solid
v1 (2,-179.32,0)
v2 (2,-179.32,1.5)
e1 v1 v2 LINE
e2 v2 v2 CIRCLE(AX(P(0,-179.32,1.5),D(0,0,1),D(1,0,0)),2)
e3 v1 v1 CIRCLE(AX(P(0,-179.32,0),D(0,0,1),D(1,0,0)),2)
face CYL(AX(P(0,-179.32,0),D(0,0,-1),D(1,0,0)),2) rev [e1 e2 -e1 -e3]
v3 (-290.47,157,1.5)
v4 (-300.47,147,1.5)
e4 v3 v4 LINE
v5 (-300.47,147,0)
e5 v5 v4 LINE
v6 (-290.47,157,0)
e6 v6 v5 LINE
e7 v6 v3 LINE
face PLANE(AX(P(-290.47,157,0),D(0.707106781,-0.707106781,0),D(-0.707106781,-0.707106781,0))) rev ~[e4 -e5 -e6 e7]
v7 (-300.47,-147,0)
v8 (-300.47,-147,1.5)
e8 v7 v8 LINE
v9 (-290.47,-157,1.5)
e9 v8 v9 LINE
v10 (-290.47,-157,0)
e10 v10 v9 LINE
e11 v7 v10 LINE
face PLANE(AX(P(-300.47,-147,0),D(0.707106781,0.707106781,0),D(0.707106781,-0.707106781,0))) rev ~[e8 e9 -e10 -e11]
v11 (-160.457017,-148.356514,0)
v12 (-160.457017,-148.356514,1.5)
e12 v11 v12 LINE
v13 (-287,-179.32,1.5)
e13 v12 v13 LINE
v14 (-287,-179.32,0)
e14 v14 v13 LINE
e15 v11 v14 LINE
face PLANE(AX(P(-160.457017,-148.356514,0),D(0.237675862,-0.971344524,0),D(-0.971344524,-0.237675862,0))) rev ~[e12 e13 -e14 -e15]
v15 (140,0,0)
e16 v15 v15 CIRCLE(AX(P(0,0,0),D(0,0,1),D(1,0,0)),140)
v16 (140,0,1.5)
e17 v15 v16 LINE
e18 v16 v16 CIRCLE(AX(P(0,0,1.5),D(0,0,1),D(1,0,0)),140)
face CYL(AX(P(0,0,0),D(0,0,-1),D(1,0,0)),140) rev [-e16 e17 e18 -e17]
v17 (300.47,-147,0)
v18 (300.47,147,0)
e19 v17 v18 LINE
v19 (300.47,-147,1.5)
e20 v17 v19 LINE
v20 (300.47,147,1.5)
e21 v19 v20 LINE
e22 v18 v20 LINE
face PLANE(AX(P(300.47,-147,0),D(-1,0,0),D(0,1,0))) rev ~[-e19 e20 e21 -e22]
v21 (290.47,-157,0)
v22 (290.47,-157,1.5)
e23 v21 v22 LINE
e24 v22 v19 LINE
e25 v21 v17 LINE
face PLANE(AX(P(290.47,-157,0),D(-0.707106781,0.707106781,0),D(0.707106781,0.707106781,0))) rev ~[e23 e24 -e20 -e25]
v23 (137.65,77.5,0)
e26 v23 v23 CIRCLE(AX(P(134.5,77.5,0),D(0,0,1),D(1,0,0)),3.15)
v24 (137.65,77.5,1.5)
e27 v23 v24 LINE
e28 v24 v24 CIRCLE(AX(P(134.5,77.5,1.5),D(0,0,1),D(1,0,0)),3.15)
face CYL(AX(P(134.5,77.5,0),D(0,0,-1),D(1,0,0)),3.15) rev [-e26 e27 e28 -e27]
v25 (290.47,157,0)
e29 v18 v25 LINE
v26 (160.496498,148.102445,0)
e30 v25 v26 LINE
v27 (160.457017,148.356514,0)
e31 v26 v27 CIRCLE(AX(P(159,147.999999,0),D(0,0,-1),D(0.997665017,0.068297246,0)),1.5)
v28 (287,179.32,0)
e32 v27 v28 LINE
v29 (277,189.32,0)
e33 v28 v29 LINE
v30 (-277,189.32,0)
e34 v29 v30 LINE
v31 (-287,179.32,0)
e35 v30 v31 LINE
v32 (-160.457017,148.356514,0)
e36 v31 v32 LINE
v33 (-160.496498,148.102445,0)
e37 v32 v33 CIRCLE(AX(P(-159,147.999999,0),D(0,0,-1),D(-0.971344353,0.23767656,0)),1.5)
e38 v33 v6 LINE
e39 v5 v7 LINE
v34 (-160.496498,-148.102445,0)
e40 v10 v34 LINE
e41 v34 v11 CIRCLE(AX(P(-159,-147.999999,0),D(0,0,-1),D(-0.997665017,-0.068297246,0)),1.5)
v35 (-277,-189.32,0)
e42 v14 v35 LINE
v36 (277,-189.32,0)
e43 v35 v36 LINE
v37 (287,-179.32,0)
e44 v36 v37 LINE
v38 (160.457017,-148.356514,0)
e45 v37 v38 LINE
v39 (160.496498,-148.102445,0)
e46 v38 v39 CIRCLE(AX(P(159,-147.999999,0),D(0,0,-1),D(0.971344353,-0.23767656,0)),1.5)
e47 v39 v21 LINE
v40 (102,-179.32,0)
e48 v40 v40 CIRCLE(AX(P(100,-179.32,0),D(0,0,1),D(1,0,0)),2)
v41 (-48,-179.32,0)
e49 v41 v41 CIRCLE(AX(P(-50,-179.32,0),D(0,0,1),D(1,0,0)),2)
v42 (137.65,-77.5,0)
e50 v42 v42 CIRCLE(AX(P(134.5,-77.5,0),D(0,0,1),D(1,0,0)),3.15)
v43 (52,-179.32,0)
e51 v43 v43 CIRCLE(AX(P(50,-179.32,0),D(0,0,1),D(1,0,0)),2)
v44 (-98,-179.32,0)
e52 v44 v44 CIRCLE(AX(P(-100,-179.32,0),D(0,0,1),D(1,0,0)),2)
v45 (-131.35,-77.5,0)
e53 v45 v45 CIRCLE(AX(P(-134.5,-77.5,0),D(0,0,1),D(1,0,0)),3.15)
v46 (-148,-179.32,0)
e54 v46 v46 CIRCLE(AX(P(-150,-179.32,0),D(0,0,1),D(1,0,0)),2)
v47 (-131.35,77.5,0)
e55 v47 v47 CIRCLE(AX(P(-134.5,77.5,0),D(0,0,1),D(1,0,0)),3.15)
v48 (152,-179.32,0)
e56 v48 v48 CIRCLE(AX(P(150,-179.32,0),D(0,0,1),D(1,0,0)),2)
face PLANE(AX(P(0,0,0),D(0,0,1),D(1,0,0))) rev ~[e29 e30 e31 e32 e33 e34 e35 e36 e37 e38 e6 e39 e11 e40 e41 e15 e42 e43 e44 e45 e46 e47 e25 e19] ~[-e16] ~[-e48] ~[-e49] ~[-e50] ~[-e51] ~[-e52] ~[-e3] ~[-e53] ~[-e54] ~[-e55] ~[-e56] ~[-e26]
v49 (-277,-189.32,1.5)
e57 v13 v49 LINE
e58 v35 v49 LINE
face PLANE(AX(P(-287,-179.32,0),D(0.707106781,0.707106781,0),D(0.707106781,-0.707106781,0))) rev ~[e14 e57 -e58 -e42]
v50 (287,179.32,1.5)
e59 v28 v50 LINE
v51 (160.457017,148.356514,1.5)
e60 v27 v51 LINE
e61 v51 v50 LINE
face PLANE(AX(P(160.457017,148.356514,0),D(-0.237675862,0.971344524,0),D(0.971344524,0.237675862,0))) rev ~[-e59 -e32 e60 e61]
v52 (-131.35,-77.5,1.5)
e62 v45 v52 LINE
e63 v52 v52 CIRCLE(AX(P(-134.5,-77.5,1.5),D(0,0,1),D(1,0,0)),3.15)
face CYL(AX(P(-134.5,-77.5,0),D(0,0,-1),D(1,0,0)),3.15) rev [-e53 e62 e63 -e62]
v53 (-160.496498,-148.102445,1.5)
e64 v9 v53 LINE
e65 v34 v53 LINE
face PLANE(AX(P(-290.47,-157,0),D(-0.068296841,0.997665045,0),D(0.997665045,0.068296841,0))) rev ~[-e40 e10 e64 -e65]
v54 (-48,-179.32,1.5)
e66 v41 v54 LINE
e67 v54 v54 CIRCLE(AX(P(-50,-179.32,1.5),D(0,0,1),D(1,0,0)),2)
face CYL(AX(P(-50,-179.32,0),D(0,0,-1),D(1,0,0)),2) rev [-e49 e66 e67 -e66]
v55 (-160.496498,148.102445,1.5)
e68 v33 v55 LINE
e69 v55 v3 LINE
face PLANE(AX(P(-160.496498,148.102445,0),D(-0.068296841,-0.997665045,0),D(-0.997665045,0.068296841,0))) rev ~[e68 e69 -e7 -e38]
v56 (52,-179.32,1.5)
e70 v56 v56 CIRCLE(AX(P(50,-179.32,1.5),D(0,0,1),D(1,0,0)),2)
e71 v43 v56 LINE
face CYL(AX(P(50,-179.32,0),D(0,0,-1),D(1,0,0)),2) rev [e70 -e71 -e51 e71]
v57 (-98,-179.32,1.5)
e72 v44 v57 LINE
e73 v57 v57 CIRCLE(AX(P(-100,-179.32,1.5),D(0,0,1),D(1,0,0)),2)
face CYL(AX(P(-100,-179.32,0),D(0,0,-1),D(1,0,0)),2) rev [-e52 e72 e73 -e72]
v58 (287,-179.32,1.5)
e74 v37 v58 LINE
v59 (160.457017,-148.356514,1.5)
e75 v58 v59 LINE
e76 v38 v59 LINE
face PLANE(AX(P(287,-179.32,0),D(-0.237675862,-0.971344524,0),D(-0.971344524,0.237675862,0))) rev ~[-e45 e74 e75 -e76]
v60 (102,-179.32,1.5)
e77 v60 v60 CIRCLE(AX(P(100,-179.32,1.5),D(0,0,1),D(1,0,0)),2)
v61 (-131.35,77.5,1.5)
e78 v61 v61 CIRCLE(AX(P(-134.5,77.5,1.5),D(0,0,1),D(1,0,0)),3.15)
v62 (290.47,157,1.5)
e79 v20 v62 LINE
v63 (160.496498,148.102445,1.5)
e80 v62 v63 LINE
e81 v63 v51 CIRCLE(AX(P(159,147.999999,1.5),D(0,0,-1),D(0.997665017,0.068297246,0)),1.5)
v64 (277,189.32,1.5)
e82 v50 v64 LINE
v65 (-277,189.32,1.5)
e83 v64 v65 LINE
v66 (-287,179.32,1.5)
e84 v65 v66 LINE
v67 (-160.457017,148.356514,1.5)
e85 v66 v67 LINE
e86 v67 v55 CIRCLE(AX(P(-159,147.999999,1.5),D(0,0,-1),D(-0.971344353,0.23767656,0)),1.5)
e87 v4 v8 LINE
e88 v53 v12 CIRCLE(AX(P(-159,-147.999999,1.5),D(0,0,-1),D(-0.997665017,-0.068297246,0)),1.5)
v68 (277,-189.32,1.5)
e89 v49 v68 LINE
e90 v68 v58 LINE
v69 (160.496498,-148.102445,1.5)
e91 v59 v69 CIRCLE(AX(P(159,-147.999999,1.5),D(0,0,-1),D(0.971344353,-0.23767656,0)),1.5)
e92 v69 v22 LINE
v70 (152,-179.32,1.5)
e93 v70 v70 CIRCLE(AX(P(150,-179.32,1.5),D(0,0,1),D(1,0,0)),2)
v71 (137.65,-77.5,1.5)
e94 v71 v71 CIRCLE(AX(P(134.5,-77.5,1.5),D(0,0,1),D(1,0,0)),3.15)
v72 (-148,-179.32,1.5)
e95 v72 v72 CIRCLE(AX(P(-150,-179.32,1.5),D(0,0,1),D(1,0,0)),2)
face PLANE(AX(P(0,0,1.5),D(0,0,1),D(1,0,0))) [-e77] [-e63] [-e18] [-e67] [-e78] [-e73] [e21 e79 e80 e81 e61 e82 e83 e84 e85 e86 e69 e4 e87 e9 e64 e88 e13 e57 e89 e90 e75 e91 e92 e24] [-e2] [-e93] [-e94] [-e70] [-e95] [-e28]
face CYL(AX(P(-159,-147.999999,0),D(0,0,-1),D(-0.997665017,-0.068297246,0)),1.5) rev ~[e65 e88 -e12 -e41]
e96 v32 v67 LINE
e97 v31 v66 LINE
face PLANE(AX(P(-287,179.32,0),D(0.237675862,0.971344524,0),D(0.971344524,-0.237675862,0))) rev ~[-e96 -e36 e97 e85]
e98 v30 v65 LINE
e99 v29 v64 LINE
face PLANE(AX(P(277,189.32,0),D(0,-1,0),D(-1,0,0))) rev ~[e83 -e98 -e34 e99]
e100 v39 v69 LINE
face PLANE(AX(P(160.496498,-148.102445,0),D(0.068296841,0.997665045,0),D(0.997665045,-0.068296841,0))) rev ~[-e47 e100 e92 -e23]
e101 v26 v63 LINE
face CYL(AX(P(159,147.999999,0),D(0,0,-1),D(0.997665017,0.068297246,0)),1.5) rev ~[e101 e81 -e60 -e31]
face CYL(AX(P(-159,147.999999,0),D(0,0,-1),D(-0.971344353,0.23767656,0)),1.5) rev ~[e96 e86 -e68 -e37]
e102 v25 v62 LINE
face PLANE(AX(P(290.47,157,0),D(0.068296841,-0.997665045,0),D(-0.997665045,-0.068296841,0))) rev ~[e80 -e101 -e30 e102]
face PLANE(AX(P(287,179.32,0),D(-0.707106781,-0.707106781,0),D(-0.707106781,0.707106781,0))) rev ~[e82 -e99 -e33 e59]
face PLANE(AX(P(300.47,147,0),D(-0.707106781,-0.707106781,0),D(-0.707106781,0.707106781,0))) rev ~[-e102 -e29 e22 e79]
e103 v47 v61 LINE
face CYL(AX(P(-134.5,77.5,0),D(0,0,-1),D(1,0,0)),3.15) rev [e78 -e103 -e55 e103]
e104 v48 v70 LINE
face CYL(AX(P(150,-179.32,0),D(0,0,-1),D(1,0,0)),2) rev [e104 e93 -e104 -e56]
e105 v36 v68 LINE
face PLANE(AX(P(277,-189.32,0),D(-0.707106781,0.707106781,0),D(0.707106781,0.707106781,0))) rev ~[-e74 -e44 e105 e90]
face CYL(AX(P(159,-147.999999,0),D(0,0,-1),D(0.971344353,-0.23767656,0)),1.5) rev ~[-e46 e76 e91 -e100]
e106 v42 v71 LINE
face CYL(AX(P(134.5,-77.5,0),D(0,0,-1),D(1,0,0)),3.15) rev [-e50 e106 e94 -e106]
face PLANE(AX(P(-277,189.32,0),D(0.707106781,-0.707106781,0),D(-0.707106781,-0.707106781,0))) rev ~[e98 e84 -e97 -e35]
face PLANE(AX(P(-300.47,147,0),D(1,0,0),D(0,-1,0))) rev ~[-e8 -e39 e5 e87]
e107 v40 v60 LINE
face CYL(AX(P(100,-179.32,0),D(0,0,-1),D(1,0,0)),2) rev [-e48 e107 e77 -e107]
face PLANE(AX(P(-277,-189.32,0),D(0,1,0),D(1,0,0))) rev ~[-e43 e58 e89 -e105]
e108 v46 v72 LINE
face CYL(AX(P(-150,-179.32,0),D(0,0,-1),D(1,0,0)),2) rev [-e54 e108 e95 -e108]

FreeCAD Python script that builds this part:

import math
import FreeCAD as App
import Part
import Sketcher
from FreeCAD import Vector
Q = App.Units.Quantity

doc = App.newDocument("Part")
body = doc.addObject("PartDesign::Body", "Body")

sketch1 = body.newObject("Sketcher::SketchObject", "Sketch")
sketch1.AttachmentSupport = (doc.getObject("XY_Plane"), [""])
sketch1.MapMode = "FlatFace"
sketch1.addGeometry(Part.LineSegment(Vector(-160.46, -148.36, 0), Vector(-287, -179.32, 0)), False)
sketch1.addGeometry(Part.LineSegment(Vector(-287, -179.32, 0), Vector(-277, -189.32, 0)), False)
sketch1.addGeometry(Part.LineSegment(Vector(-277, -189.32, 0), Vector(277, -189.32, 0)), False)
sketch1.addGeometry(Part.LineSegment(Vector(277, -189.32, 0), Vector(287, -179.32, 0)), False)
sketch1.addGeometry(Part.LineSegment(Vector(287, -179.32, 0), Vector(160.46, -148.36, 0)), False)
sketch1.addGeometry(Part.ArcOfCircle(Part.Circle(Vector(159, -148, 0), Vector(0, 0, 1), 1.5), math.radians(-4), math.radians(346)), False)
sketch1.addGeometry(Part.LineSegment(Vector(160.5, -148.1, 0), Vector(290.47, -157, 0)), False)
sketch1.addGeometry(Part.LineSegment(Vector(290.47, -157, 0), Vector(300.47, -147, 0)), False)
sketch1.addGeometry(Part.LineSegment(Vector(300.47, -147, 0), Vector(300.47, 147, 0)), False)
sketch1.addGeometry(Part.LineSegment(Vector(300.47, 147, 0), Vector(290.47, 157, 0)), False)
sketch1.addGeometry(Part.LineSegment(Vector(290.47, 157, 0), Vector(160.5, 148.1, 0)), False)
sketch1.addGeometry(Part.ArcOfCircle(Part.Circle(Vector(159, 148, 0), Vector(0, 0, 1), 1.5), math.radians(14), math.radians(364)), False)
sketch1.addGeometry(Part.LineSegment(Vector(160.46, 148.36, 0), Vector(287, 179.32, 0)), False)
sketch1.addGeometry(Part.LineSegment(Vector(287, 179.32, 0), Vector(277, 189.32, 0)), False)
sketch1.addGeometry(Part.LineSegment(Vector(277, 189.32, 0), Vector(-277, 189.32, 0)), False)
sketch1.addGeometry(Part.LineSegment(Vector(-277, 189.32, 0), Vector(-287, 179.32, 0)), False)
sketch1.addGeometry(Part.LineSegment(Vector(-287, 179.32, 0), Vector(-160.46, 148.36, 0)), False)
sketch1.addGeometry(Part.ArcOfCircle(Part.Circle(Vector(-159, 148, 0), Vector(0, 0, 1), 1.5), math.radians(176), math.radians(526)), False)
sketch1.addGeometry(Part.LineSegment(Vector(-160.5, 148.1, 0), Vector(-290.47, 157, 0)), False)
sketch1.addGeometry(Part.LineSegment(Vector(-290.47, 157, 0), Vector(-300.47, 147, 0)), False)
sketch1.addGeometry(Part.LineSegment(Vector(-300.47, 147, 0), Vector(-300.47, -147, 0)), False)
sketch1.addGeometry(Part.LineSegment(Vector(-300.47, -147, 0), Vector(-290.47, -157, 0)), False)
sketch1.addGeometry(Part.LineSegment(Vector(-290.47, -157, 0), Vector(-160.5, -148.1, 0)), False)
sketch1.addGeometry(Part.ArcOfCircle(Part.Circle(Vector(-159, -148, 0), Vector(0, 0, 1), 1.5), math.radians(-166), math.radians(184)), False)
sketch1.addGeometry(Part.Circle(Vector(-150, -179.32, 0), Vector(0, 0, 1), 2), False)
sketch1.addGeometry(Part.Circle(Vector(-100, -179.32, 0), Vector(0, 0, 1), 2), False)
sketch1.addGeometry(Part.Circle(Vector(-50, -179.32, 0), Vector(0, 0, 1), 2), False)
sketch1.addGeometry(Part.Circle(Vector(-134.5, -77.5, 0), Vector(0, 0, 1), 3.15), False)
sketch1.addGeometry(Part.Circle(Vector(0, -179.32, 0), Vector(0, 0, 1), 2), False)
sketch1.addGeometry(Part.Circle(Vector(50, -179.32, 0), Vector(0, 0, 1), 2), False)
sketch1.addGeometry(Part.Circle(Vector(100, -179.32, 0), Vector(0, 0, 1), 2), False)
sketch1.addGeometry(Part.Circle(Vector(150, -179.32, 0), Vector(0, 0, 1), 2), False)
sketch1.addGeometry(Part.Circle(Vector(134.5, -77.5, 0), Vector(0, 0, 1), 3.15), False)
sketch1.addGeometry(Part.Circle(Vector(-134.5, 77.5, 0), Vector(0, 0, 1), 3.15), False)
sketch1.addGeometry(Part.Circle(Vector(0, 0, 0), Vector(0, 0, 1), 140), False)
sketch1.addGeometry(Part.Circle(Vector(134.5, 77.5, 0), Vector(0, 0, 1), 3.15), False)
sketch1.addConstraint(Sketcher.Constraint("Coincident", 0, 2, 1, 1))
sketch1.addConstraint(Sketcher.Constraint("Coincident", 1, 2, 2, 1))
sketch1.addConstraint(Sketcher.Constraint("Coincident", 2, 2, 3, 1))
sketch1.addConstraint(Sketcher.Constraint("Coincident", 3, 2, 4, 1))
sketch1.addConstraint(Sketcher.Constraint("Coincident", 4, 2, 5, 2))
sketch1.addConstraint(Sketcher.Constraint("Coincident", 5, 1, 6, 1))
sketch1.addConstraint(Sketcher.Constraint("Coincident", 6, 2, 7, 1))
sketch1.addConstraint(Sketcher.Constraint("Coincident", 7, 2, 8, 1))
sketch1.addConstraint(Sketcher.Constraint("Coincident", 8, 2, 9, 1))
sketch1.addConstraint(Sketcher.Constraint("Coincident", 9, 2, 10, 1))
sketch1.addConstraint(Sketcher.Constraint("Coincident", 10, 2, 11, 2))
sketch1.addConstraint(Sketcher.Constraint("Coincident", 11, 1, 12, 1))
sketch1.addConstraint(Sketcher.Constraint("Coincident", 12, 2, 13, 1))
sketch1.addConstraint(Sketcher.Constraint("Coincident", 13, 2, 14, 1))
sketch1.addConstraint(Sketcher.Constraint("Coincident", 14, 2, 15, 1))
sketch1.addConstraint(Sketcher.Constraint("Coincident", 15, 2, 16, 1))
sketch1.addConstraint(Sketcher.Constraint("Coincident", 16, 2, 17, 2))
sketch1.addConstraint(Sketcher.Constraint("Coincident", 17, 1, 18, 1))
sketch1.addConstraint(Sketcher.Constraint("Coincident", 18, 2, 19, 1))
sketch1.addConstraint(Sketcher.Constraint("Coincident", 19, 2, 20, 1))
sketch1.addConstraint(Sketcher.Constraint("Coincident", 20, 2, 21, 1))
sketch1.addConstraint(Sketcher.Constraint("Coincident", 21, 2, 22, 1))
sketch1.addConstraint(Sketcher.Constraint("Coincident", 22, 2, 23, 2))
sketch1.addConstraint(Sketcher.Constraint("Coincident", 23, 1, 0, 1))
sketch1.addConstraint(Sketcher.Constraint("Horizontal", 2))
sketch1.addConstraint(Sketcher.Constraint("Vertical", 8))
sketch1.addConstraint(Sketcher.Constraint("Horizontal", 14))
sketch1.addConstraint(Sketcher.Constraint("Vertical", 20))
sketch1.addConstraint(Sketcher.Constraint("Coincident", 34, 3, -1, 1))
sketch1.addConstraint(Sketcher.Constraint("Equal", 5, 11))
sketch1.addConstraint(Sketcher.Constraint("Equal", 11, 17))
sketch1.addConstraint(Sketcher.Constraint("Equal", 17, 23))
sketch1.addConstraint(Sketcher.Constraint("Equal", 24, 25))
sketch1.addConstraint(Sketcher.Constraint("Equal", 25, 26))
sketch1.addConstraint(Sketcher.Constraint("Equal", 26, 28))
sketch1.addConstraint(Sketcher.Constraint("Equal", 28, 29))
sketch1.addConstraint(Sketcher.Constraint("Equal", 29, 30))
sketch1.addConstraint(Sketcher.Constraint("Equal", 30, 31))
sketch1.addConstraint(Sketcher.Constraint("Equal", 27, 32))
sketch1.addConstraint(Sketcher.Constraint("Equal", 32, 33))
sketch1.addConstraint(Sketcher.Constraint("Equal", 33, 35))
sketch1.addConstraint(Sketcher.Constraint("Symmetric", 5, 3, 17, 3, -1, 1))
sketch1.addConstraint(Sketcher.Constraint("Symmetric", 11, 3, 23, 3, -1, 1))
sketch1.addConstraint(Sketcher.Constraint("Symmetric", 32, 3, 33, 3, -1, 1))
sketch1.addConstraint(Sketcher.Constraint("Symmetric", 27, 3, 35, 3, -1, 1))
sketch1.addConstraint(Sketcher.Constraint("Symmetric", 0, 2, 12, 2, -1, 1))
sketch1.addConstraint(Sketcher.Constraint("Symmetric", 1, 2, 13, 2, -1, 1))
sketch1.addConstraint(Sketcher.Constraint("Symmetric", 3, 2, 15, 2, -1, 1))
sketch1.addConstraint(Sketcher.Constraint("Symmetric", 6, 2, 18, 2, -1, 1))
sketch1.addConstraint(Sketcher.Constraint("Symmetric", 7, 2, 19, 2, -1, 1))
sketch1.addConstraint(Sketcher.Constraint("Symmetric", 9, 2, 21, 2, -1, 1))
sketch1.addConstraint(Sketcher.Constraint("Symmetric", 11, 3, 17, 3, -2))
sketch1.addConstraint(Sketcher.Constraint("Symmetric", 26, 3, 29, 3, -2))
sketch1.addConstraint(Sketcher.Constraint("Symmetric", 25, 3, 30, 3, -2))
sketch1.addConstraint(Sketcher.Constraint("Symmetric", 24, 3, 31, 3, -2))
sketch1.addConstraint(Sketcher.Constraint("Symmetric", 27, 3, 32, 3, -2))
sketch1.addConstraint(Sketcher.Constraint("Symmetric", 0, 2, 3, 2, -2))
sketch1.addConstraint(Sketcher.Constraint("Symmetric", 9, 2, 18, 2, -2))
sketch1.addConstraint(Sketcher.Constraint("PointOnObject", 28, 3, -2))
sketch1.addConstraint(Sketcher.Constraint("Perpendicular", 1, 3))
sketch1.addConstraint(Sketcher.Constraint("Parallel", 3, 7))
sketch1.addConstraint(Sketcher.Constraint("Perpendicular", 7, 9))
sketch1.addConstraint(Sketcher.Constraint("Parallel", 0, 12))
sketch1.addConstraint(Sketcher.Constraint("Perpendicular", 13, 15))
sketch1.addConstraint(Sketcher.Constraint("Parallel", 4, 16))
sketch1.addConstraint(Sketcher.Constraint("Parallel", 6, 18))
sketch1.addConstraint(Sketcher.Constraint("Perpendicular", 19, 21))
sketch1.addConstraint(Sketcher.Constraint("Parallel", 10, 22))
sketch1.addConstraint(Sketcher.Constraint("Horizontal", 24, 3, 25, 3))
sketch1.addConstraint(Sketcher.Constraint("Horizontal", 25, 3, 26, 3))
sketch1.addConstraint(Sketcher.Constraint("Horizontal", 26, 3, 28, 3))
sketch1.addConstraint(Sketcher.Constraint("Horizontal", 31, 3, 0, 2))
sketch1.addConstraint(Sketcher.Constraint("Horizontal", 11, 1, 16, 2))
sketch1.addConstraint(Sketcher.Constraint("Horizontal", 10, 2, 17, 1))
sketch1.addConstraint(Sketcher.Constraint("Horizontal", 8, 2, 19, 2))
sketch1.addConstraint(Sketcher.Constraint("Equal", 3, 7))
sketch1.addConstraint(Sketcher.Constraint("Diameter", 24, Q("4 mm")))
sketch1.addConstraint(Sketcher.Constraint("Diameter", 34, Q("280 mm")))
sketch1.addConstraint(Sketcher.Constraint("Diameter", 27, Q("6.3 mm")))
sketch1.addConstraint(Sketcher.Constraint("Radius", 5, Q("1.5 mm")))
sketch1.addConstraint(Sketcher.Constraint("DistanceX", 2, 1, 2, 2, Q("554 mm")))
sketch1.addConstraint(Sketcher.Constraint("DistanceY", 8, 1, 8, 2, Q("294 mm")))
sketch1.addConstraint(Sketcher.Constraint("DistanceX", -1, 1, 5, 3, Q("159 mm")))
sketch1.addConstraint(Sketcher.Constraint("DistanceY", 5, 3, -1, 1, Q("147.999999 mm")))
sketch1.addConstraint(Sketcher.Constraint("DistanceX", 24, 3, -1, 1, Q("150 mm")))
sketch1.addConstraint(Sketcher.Constraint("DistanceX", 25, 3, -1, 1, Q("100 mm")))
sketch1.addConstraint(Sketcher.Constraint("DistanceX", 26, 3, -1, 1, Q("50 mm")))
sketch1.addConstraint(Sketcher.Constraint("DistanceX", 0, 2, -1, 1, Q("287 mm")))
sketch1.addConstraint(Sketcher.Constraint("DistanceY", 27, 3, 33, 3, Q("155 mm")))
sketch1.addConstraint(Sketcher.Constraint("DistanceX", 27, 3, -1, 1, Q("134.5 mm")))
sketch1.addConstraint(Sketcher.Constraint("DistanceY", 24, 3, -1, 1, Q("179.32 mm")))
sketch1.addConstraint(Sketcher.Constraint("DistanceX", -1, 1, 6, 2, Q("290.47 mm")))
sketch1.addConstraint(Sketcher.Constraint("DistanceX", -1, 1, 5, 1, Q("160.496498 mm")))
sketch1.addConstraint(Sketcher.Constraint("DistanceX", 4, 2, 5, 1, Q("0.039481 mm")))
pad1 = body.newObject("PartDesign::Pad", "Pad")
pad1.Profile = sketch1
pad1.Length = 1.5

doc.recompute()
